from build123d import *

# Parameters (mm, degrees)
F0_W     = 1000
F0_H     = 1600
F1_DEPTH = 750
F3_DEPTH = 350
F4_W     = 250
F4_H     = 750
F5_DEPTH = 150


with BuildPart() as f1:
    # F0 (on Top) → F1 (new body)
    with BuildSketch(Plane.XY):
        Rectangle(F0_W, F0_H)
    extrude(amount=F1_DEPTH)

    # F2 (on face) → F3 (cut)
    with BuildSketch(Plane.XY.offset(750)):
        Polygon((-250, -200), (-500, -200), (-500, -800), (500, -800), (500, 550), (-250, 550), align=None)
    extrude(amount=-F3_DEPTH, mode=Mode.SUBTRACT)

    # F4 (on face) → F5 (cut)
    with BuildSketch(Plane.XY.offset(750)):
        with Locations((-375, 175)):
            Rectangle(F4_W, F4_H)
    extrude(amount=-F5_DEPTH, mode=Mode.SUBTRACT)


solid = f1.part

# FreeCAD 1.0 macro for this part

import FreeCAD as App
import Part
import Sketcher

V = App.Vector

doc = App.newDocument("Part")
params = doc.addObject("Spreadsheet::Sheet", "Params")
for row, (alias, value) in enumerate([
    ("sketch1_width", "1000 mm"),
    ("sketch1_height", "1600 mm"),
    ("pad1_length", "750 mm"),
    ("sketch2_width", "250 mm"),
    ("sketch2_width2", "1000 mm"),
    ("sketch2_height", "600 mm"),
    ("pocket1_length", "350 mm"),
    ("sketch3_width", "250 mm"),
    ("sketch3_height", "750 mm"),
    ("pocket2_length", "150 mm"),
], start=1):
    params.set(f"A{row}", alias)
    params.set(f"B{row}", "=" + value)
    params.setAlias(f"B{row}", alias)

body = doc.addObject("PartDesign::Body", "Body")

# Sketch on XY plane
sketch1 = doc.addObject("Sketcher::SketchObject", "Sketch")
body.addObject(sketch1)
sketch1.AttachmentSupport = (doc.XY_Plane, [""])
sketch1.MapMode = "FlatFace"
sketch1.addGeometry([
    Part.LineSegment(V(-500, 800, 0), V(-500, -800, 0)),
    Part.LineSegment(V(-500, -800, 0), V(500, -800, 0)),
    Part.LineSegment(V(500, -800, 0), V(500, 800, 0)),
    Part.LineSegment(V(500, 800, 0), V(-500, 800, 0)),
], False)
sketch1.addConstraint([
    Sketcher.Constraint("Coincident", 0, 2, 1, 1),
    Sketcher.Constraint("Coincident", 1, 2, 2, 1),
    Sketcher.Constraint("Coincident", 2, 2, 3, 1),
    Sketcher.Constraint("Coincident", 3, 2, 0, 1),
    Sketcher.Constraint("Vertical", 0),
    Sketcher.Constraint("Horizontal", 1),
    Sketcher.Constraint("Vertical", 2),
    Sketcher.Constraint("Horizontal", 3),
    Sketcher.Constraint("Symmetric", 0, 2, 2, 2, -1, 1),
    Sketcher.Constraint("DistanceX", 1, 1, 1, 2, 1000.0),
    Sketcher.Constraint("DistanceY", 0, 2, 0, 1, 1600.0),
])
sketch1.setExpression("Constraints[9]", "Params.sketch1_width")
sketch1.setExpression("Constraints[10]", "Params.sketch1_height")
pad1 = doc.addObject("PartDesign::Pad", "Pad")
body.addObject(pad1)
pad1.Profile = sketch1
pad1.setExpression("Length", "Params.pad1_length")

# Sketch on XY plane
sketch2 = doc.addObject("Sketcher::SketchObject", "Sketch001")
body.addObject(sketch2)
sketch2.AttachmentSupport = (doc.XY_Plane, [""])
sketch2.MapMode = "FlatFace"
sketch2.AttachmentOffset = App.Placement(V(0, 0, 750), App.Rotation())
sketch2.addGeometry([
    Part.LineSegment(V(-250, -200, 0), V(-500, -200, 0)),  # 0
    Part.LineSegment(V(-500, -200, 0), V(-500, -800, 0)),  # 1
    Part.LineSegment(V(-500, -800, 0), V(500, -800, 0)),  # 2
    Part.LineSegment(V(500, -800, 0), V(500, 550, 0)),  # 3
    Part.LineSegment(V(500, 550, 0), V(-250, 550, 0)),  # 4
    Part.LineSegment(V(-250, 550, 0), V(-250, -200, 0)),  # 5
], False)
sketch2.addConstraint([
    Sketcher.Constraint("Coincident", 0, 2, 1, 1),
    Sketcher.Constraint("Coincident", 1, 2, 2, 1),
    Sketcher.Constraint("Coincident", 2, 2, 3, 1),
    Sketcher.Constraint("Coincident", 3, 2, 4, 1),
    Sketcher.Constraint("Coincident", 4, 2, 5, 1),
    Sketcher.Constraint("Coincident", 5, 2, 0, 1),
    Sketcher.Constraint("Horizontal", 0),
    Sketcher.Constraint("Vertical", 1),
    Sketcher.Constraint("Horizontal", 2),
    Sketcher.Constraint("Vertical", 3),
    Sketcher.Constraint("Horizontal", 4),
    Sketcher.Constraint("Vertical", 5),
    Sketcher.Constraint("Equal", 4, 5),
    Sketcher.Constraint("DistanceX", 0, 2, 0, 1, 250.0),
    Sketcher.Constraint("DistanceX", 2, 1, 2, 2, 1000.0),
    Sketcher.Constraint("DistanceY", 1, 2, 1, 1, 600.0),
    Sketcher.Constraint("DistanceX", 0, 2, -1, 1, 500.0),
    Sketcher.Constraint("DistanceY", 0, 2, -1, 1, 200.0),
])
sketch2.setExpression("Constraints[13]", "Params.sketch2_width")
sketch2.setExpression("Constraints[14]", "Params.sketch2_width2")
sketch2.setExpression("Constraints[15]", "Params.sketch2_height")
pocket1 = doc.addObject("PartDesign::Pocket", "Pocket")
body.addObject(pocket1)
pocket1.Profile = sketch2
pocket1.setExpression("Length", "Params.pocket1_length")

# Sketch on XY plane
sketch3 = doc.addObject("Sketcher::SketchObject", "Sketch002")
body.addObject(sketch3)
sketch3.AttachmentSupport = (doc.XY_Plane, [""])
sketch3.MapMode = "FlatFace"
sketch3.AttachmentOffset = App.Placement(V(0, 0, 750), App.Rotation())
sketch3.addGeometry([
    Part.LineSegment(V(-500, 550, 0), V(-500, -200, 0)),
    Part.LineSegment(V(-500, -200, 0), V(-250, -200, 0)),
    Part.LineSegment(V(-250, -200, 0), V(-250, 550, 0)),
    Part.LineSegment(V(-250, 550, 0), V(-500, 550, 0)),
], False)
sketch3.addConstraint([
    Sketcher.Constraint("Coincident", 0, 2, 1, 1),
    Sketcher.Constraint("Coincident", 1, 2, 2, 1),
    Sketcher.Constraint("Coincident", 2, 2, 3, 1),
    Sketcher.Constraint("Coincident", 3, 2, 0, 1),
    Sketcher.Constraint("Vertical", 0),
    Sketcher.Constraint("Horizontal", 1),
    Sketcher.Constraint("Vertical", 2),
    Sketcher.Constraint("Horizontal", 3),
    Sketcher.Constraint("DistanceX", 1, 1, 1, 2, 250.0),
    Sketcher.Constraint("DistanceY", 0, 2, 0, 1, 750.0),
    Sketcher.Constraint("DistanceX", 0, 2, -1, 1, 500.0),
    Sketcher.Constraint("DistanceY", 0, 2, -1, 1, 200.0),
])
sketch3.setExpression("Constraints[8]", "Params.sketch3_width")
sketch3.setExpression("Constraints[9]", "Params.sketch3_height")
pocket2 = doc.addObject("PartDesign::Pocket", "Pocket001")
body.addObject(pocket2)
pocket2.Profile = sketch3
pocket2.setExpression("Length", "Params.pocket2_length")

doc.recompute()
